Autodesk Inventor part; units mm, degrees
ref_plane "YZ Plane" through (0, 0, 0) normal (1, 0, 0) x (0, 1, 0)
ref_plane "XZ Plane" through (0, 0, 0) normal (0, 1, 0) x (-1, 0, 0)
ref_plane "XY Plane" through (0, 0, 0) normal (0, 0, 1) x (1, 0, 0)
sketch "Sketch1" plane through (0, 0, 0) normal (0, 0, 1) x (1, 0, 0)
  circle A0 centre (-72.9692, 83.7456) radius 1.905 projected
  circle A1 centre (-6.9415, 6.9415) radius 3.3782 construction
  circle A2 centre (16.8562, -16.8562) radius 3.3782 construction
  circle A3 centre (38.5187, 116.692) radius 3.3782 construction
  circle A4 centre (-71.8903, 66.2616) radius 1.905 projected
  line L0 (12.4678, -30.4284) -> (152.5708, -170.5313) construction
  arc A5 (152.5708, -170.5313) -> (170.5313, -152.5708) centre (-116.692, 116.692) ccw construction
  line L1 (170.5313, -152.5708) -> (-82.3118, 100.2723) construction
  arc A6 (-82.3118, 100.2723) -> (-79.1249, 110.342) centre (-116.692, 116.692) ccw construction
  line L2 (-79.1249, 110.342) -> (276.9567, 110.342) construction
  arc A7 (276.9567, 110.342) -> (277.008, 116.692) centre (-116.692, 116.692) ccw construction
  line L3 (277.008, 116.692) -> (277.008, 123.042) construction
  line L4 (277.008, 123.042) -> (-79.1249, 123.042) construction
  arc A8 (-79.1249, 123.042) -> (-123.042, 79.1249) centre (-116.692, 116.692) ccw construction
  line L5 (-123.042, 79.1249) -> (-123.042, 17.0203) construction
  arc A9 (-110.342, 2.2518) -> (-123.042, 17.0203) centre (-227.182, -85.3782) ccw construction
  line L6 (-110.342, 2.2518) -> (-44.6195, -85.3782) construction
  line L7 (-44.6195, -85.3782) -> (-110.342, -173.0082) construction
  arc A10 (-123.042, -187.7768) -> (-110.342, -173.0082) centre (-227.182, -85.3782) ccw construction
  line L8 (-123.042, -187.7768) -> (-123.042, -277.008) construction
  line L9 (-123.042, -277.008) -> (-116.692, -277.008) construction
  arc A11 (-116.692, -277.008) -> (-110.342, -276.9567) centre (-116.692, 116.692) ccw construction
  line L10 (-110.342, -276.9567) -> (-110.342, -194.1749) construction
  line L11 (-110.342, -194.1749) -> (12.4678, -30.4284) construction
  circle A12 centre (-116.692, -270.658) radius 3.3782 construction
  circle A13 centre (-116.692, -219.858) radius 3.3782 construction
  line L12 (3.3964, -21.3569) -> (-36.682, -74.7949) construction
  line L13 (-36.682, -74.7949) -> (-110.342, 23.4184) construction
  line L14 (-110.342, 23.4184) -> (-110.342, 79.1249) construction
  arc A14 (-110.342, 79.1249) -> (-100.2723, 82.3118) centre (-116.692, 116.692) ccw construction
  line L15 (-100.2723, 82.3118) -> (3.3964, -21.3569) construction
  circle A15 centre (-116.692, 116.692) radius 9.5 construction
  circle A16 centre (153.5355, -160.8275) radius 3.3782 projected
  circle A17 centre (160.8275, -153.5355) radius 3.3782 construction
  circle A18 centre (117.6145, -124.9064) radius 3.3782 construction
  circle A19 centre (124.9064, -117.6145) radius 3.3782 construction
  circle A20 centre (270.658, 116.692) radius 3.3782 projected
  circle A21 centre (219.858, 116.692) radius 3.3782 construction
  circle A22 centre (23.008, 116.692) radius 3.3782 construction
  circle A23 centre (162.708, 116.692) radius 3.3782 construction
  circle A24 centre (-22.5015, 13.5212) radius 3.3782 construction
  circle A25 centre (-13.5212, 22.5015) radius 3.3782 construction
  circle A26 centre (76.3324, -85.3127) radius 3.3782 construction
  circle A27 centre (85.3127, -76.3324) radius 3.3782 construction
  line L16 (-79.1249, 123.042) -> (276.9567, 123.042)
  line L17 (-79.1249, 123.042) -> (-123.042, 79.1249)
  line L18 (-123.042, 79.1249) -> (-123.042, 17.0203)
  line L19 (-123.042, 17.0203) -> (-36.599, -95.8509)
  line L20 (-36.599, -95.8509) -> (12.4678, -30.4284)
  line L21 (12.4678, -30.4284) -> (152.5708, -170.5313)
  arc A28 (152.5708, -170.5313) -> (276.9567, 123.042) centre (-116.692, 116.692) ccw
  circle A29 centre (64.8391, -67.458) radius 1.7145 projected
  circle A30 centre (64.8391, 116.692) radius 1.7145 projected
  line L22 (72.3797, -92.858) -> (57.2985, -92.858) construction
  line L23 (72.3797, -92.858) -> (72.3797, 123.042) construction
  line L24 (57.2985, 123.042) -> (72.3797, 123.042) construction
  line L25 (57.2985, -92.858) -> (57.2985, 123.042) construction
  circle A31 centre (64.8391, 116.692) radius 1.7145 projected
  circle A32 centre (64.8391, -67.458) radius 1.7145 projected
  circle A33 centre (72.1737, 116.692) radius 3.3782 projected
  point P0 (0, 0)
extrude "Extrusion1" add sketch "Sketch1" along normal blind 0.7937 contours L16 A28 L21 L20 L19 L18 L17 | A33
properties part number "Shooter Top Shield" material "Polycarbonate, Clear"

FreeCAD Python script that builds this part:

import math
import FreeCAD as App
import Part
import Sketcher
Q = App.Units.Quantity

doc = App.newDocument("Part")
params = doc.addObject("Spreadsheet::Sheet", "Params")
for row, (alias, value) in enumerate([
    ("sketch1_radius", "15.5 in"),
    ("sketch1_diameter", "0.15 in"),
    ("sketch1_diameter2", "0.135 in"),
    ("sketch1_diameter3", "0.266 in"),
    ("pad1_length", "0.031248 in"),
], start=1):
    params.set(f"A{row}", alias)
    params.set(f"B{row}", "=" + value)
    params.setAlias(f"B{row}", alias)

body = doc.addObject("PartDesign::Body", "Body")

# Sketch on XY plane
sketch1 = body.newObject("Sketcher::SketchObject", "Sketch")
sketch1.AttachmentSupport = (doc.getObject("XY_Plane"), [""])
sketch1.MapMode = "FlatFace"
sketch1.addGeometry([
    Part.LineSegment(App.Vector(277, 123, 0), App.Vector(-79.1, 123, 0)),  # 0
    Part.LineSegment(App.Vector(-79.1, 123, 0), App.Vector(-123, 79.1, 0)),  # 1
    Part.LineSegment(App.Vector(-123, 79.1, 0), App.Vector(-123, 17, 0)),  # 2
    Part.LineSegment(App.Vector(-123, 17, 0), App.Vector(-36.6, -95.9, 0)),  # 3
    Part.LineSegment(App.Vector(-36.6, -95.9, 0), App.Vector(12.5, -30.4, 0)),  # 4
    Part.LineSegment(App.Vector(12.5, -30.4, 0), App.Vector(152.6, -170.5, 0)),  # 5
    Part.ArcOfCircle(Part.Circle(App.Vector(-116.7, 116.7, 0), App.Vector(0, 0, 1), 393.7), math.radians(-47), math.radians(1)),  # 6
    Part.Circle(App.Vector(64.8, -67.5, 0), App.Vector(0, 0, 1), 1.7),  # 7
    Part.Circle(App.Vector(153.5, -160.8, 0), App.Vector(0, 0, 1), 3.4),  # 8
    Part.Circle(App.Vector(-71.9, 66.3, 0), App.Vector(0, 0, 1), 1.9),  # 9
    Part.Circle(App.Vector(-73, 83.7, 0), App.Vector(0, 0, 1), 1.9),  # 10
    Part.Circle(App.Vector(64.8, 116.7, 0), App.Vector(0, 0, 1), 1.7),  # 11
    Part.Circle(App.Vector(270.7, 116.7, 0), App.Vector(0, 0, 1), 3.4),  # 12
], False)
sketch1.addConstraint([
    Sketcher.Constraint("Coincident", 0, 2, 1, 1),
    Sketcher.Constraint("Coincident", 1, 2, 2, 1),
    Sketcher.Constraint("Coincident", 2, 2, 3, 1),
    Sketcher.Constraint("Coincident", 3, 2, 4, 1),
    Sketcher.Constraint("Coincident", 4, 2, 5, 1),
    Sketcher.Constraint("Coincident", 5, 2, 6, 1),
    Sketcher.Constraint("Coincident", 6, 2, 0, 1),
    Sketcher.Constraint("Horizontal", 0),
    Sketcher.Constraint("Vertical", 2),
    Sketcher.Constraint("Equal", 9, 10),
    Sketcher.Constraint("Equal", 7, 11),
    Sketcher.Constraint("Equal", 8, 12),
    Sketcher.Constraint("Perpendicular", 1, 5),
    Sketcher.Constraint("Horizontal", 6, 3, 11, 3),
    Sketcher.Constraint("Horizontal", 11, 3, 12, 3),
    Sketcher.Constraint("Vertical", 7, 3, 11, 3),
    Sketcher.Constraint("Radius", 6, Q("15.5 in")),
    Sketcher.Constraint("Diameter", 9, Q("0.15 in")),
    Sketcher.Constraint("Diameter", 7, Q("0.135 in")),
    Sketcher.Constraint("Diameter", 8, Q("0.266 in")),
    Sketcher.Constraint("Angle", 1, Q("-135 deg")),
    Sketcher.Constraint("DistanceY", 7, 3, 0, 2, Q("7.5 in")),
    Sketcher.Constraint("Angle", 4, Q("53.1301 deg")),
    Sketcher.Constraint("DistanceY", 7, 3, 6, 3, Q("7.25 in")),
    Sketcher.Constraint("DistanceX", 1, 2, 6, 3, Q("0.25 in")),
    Sketcher.Constraint("DistanceX", 7, 3, 5, 2, Q("3.454 in")),
    Sketcher.Constraint("DistanceY", 5, 2, 7, 3, Q("4.058 in")),
    Sketcher.Constraint("Distance", 1, Q("2.4452 in")),
    Sketcher.Constraint("Distance", 4, Q("3.2196 in")),
    Sketcher.Constraint("Distance", 5, Q("7.8006 in")),
    Sketcher.Constraint("DistanceY", 2, 2, 2, 1, 62.1046),
    Sketcher.Constraint("DistanceX", -1, 1, 8, 3, Q("6.0447 in")),
    Sketcher.Constraint("DistanceY", 8, 3, -1, 1, Q("6.3318 in")),
    Sketcher.Constraint("DistanceX", 10, 3, -1, 1, Q("2.8728 in")),
    Sketcher.Constraint("DistanceY", -1, 1, 2, 2, Q("0.6701 in")),
    Sketcher.Constraint("DistanceX", 3, 2, -1, 1, Q("1.4409 in")),
    Sketcher.Constraint("DistanceY", 10, 3, 6, 3, Q("1.2971 in")),
    Sketcher.Constraint("DistanceX", 11, 3, 12, 3, Q("8.1031 in")),
    Sketcher.Constraint("DistanceY", 4, 2, 9, 3, Q("3.8067 in")),
    Sketcher.Constraint("DistanceX", 9, 3, -1, 1, 71.8903),
])
sketch1.setExpression("Constraints[16]", "Params.sketch1_radius")
sketch1.setExpression("Constraints[17]", "Params.sketch1_diameter")
sketch1.setExpression("Constraints[18]", "Params.sketch1_diameter2")
sketch1.setExpression("Constraints[19]", "Params.sketch1_diameter3")
pad1 = body.newObject("PartDesign::Pad", "Pad")
pad1.Profile = sketch1
pad1.setExpression("Length", "Params.pad1_length")

doc.recompute()
